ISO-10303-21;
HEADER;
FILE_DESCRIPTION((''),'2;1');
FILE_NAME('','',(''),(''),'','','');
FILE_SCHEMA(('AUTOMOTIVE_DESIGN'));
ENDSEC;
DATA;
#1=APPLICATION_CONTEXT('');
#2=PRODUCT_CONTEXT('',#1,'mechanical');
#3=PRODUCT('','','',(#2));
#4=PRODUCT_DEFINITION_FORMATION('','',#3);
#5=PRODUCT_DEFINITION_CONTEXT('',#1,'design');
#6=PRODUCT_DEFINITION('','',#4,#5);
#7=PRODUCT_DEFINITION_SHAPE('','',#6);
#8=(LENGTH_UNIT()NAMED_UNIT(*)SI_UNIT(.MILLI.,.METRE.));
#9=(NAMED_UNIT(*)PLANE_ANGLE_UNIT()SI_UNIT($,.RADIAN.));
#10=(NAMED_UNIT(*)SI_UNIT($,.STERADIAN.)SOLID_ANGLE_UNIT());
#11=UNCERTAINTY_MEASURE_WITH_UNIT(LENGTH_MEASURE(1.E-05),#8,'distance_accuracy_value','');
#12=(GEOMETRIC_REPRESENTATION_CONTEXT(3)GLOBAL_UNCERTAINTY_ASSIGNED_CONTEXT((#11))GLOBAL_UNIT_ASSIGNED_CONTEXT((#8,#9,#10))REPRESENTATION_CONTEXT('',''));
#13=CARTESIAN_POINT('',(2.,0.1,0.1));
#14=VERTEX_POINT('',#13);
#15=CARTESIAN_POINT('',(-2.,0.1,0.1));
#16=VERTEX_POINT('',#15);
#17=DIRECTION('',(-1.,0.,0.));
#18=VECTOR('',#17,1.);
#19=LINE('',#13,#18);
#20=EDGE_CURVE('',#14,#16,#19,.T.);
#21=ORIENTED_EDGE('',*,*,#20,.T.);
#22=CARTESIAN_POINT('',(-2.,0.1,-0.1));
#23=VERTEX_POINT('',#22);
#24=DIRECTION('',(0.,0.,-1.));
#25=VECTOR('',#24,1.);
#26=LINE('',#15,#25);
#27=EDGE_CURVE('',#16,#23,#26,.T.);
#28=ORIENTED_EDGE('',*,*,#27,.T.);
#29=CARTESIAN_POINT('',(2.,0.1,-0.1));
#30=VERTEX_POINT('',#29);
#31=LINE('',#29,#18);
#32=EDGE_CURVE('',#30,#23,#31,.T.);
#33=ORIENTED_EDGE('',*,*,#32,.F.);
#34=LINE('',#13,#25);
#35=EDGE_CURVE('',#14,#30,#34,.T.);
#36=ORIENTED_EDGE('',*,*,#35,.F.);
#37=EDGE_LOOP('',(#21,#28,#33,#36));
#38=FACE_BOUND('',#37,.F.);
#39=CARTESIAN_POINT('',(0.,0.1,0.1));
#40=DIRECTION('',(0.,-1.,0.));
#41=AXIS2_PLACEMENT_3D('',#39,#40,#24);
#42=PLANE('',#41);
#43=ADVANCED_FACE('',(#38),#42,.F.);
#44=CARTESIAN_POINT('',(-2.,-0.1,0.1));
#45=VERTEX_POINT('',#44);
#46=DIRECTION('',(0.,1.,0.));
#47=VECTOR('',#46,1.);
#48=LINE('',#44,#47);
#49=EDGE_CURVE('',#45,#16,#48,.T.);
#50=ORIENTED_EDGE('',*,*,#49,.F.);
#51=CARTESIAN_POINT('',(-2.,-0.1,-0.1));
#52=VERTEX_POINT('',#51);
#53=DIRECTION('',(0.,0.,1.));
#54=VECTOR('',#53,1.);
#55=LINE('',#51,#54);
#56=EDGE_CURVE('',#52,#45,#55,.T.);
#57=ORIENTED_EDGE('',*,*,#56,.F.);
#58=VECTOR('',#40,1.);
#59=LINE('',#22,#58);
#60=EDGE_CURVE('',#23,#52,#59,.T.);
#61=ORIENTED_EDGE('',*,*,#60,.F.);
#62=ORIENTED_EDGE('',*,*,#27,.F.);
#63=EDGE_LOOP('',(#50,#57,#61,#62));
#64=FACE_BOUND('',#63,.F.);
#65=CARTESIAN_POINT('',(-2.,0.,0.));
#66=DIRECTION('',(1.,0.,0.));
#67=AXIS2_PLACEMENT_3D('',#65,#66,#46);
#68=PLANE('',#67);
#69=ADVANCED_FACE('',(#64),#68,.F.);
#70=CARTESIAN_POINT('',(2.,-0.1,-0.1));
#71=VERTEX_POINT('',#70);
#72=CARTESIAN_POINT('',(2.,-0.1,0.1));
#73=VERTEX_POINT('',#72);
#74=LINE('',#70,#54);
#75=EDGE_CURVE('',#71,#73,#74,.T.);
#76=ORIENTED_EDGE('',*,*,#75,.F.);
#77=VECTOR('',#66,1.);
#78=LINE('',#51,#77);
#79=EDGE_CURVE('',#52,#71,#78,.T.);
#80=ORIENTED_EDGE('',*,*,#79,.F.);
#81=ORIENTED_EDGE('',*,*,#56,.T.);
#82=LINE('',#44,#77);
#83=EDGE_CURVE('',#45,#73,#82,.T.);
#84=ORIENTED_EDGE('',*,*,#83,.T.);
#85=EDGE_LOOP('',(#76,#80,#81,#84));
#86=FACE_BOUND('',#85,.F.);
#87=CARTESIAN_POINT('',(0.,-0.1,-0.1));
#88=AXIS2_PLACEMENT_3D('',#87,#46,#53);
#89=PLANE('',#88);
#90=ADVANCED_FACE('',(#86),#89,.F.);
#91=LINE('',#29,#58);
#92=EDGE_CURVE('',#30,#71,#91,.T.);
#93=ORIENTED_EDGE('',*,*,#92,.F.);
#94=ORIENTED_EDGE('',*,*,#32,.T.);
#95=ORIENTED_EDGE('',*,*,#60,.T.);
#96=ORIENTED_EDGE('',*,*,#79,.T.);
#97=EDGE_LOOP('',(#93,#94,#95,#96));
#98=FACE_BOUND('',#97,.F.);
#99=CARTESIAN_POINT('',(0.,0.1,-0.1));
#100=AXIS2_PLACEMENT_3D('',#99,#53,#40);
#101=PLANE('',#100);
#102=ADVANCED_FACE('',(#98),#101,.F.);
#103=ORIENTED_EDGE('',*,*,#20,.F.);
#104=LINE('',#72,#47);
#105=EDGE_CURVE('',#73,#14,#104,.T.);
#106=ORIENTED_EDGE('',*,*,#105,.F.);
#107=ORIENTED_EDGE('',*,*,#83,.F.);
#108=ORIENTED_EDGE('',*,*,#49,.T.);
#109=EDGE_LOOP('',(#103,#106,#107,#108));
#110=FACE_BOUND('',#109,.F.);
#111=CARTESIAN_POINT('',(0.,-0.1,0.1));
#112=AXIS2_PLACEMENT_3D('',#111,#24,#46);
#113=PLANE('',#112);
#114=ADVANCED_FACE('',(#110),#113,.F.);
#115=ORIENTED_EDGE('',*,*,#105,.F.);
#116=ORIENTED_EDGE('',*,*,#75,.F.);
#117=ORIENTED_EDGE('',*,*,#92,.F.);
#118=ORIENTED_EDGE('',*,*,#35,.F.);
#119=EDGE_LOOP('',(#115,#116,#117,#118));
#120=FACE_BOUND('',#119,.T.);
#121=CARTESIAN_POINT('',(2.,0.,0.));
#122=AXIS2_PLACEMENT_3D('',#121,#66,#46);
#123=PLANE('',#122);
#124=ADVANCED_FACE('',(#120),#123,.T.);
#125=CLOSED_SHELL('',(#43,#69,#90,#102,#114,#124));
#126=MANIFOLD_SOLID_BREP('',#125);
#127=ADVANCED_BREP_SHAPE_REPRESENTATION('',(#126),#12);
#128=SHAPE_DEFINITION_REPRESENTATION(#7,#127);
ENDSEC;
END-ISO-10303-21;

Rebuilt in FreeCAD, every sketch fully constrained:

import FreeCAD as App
import Part
import Sketcher
Q = App.Units.Quantity

doc = App.newDocument("Part")
params = doc.addObject("Spreadsheet::Sheet", "Params")
for row, (alias, value) in enumerate([
    ("sketch1_width", "0.2 mm"),
    ("pad1_length", "4 mm"),
], start=1):
    params.set(f"A{row}", alias)
    params.set(f"B{row}", "=" + value)
    params.setAlias(f"B{row}", alias)

body = doc.addObject("PartDesign::Body", "Body")

sketch1 = body.newObject("Sketcher::SketchObject", "Sketch")
sketch1.AttachmentSupport = (doc.getObject("YZ_Plane"), [""])
sketch1.MapMode = "FlatFace"
sketch1.addGeometry(Part.LineSegment(App.Vector(0.1, 0.1, 0), App.Vector(-0.1, 0.1, 0)), False)
sketch1.addGeometry(Part.LineSegment(App.Vector(-0.1, 0.1, 0), App.Vector(-0.1, -0.1, 0)), False)
sketch1.addGeometry(Part.LineSegment(App.Vector(-0.1, -0.1, 0), App.Vector(0.1, -0.1, 0)), False)
sketch1.addGeometry(Part.LineSegment(App.Vector(0.1, -0.1, 0), App.Vector(0.1, 0.1, 0)), False)
sketch1.addConstraint(Sketcher.Constraint("Coincident", 0, 2, 1, 1))
sketch1.addConstraint(Sketcher.Constraint("Coincident", 1, 2, 2, 1))
sketch1.addConstraint(Sketcher.Constraint("Coincident", 2, 2, 3, 1))
sketch1.addConstraint(Sketcher.Constraint("Coincident", 3, 2, 0, 1))
sketch1.addConstraint(Sketcher.Constraint("Horizontal", 0))
sketch1.addConstraint(Sketcher.Constraint("Vertical", 1))
sketch1.addConstraint(Sketcher.Constraint("Horizontal", 2))
sketch1.addConstraint(Sketcher.Constraint("Vertical", 3))
sketch1.addConstraint(Sketcher.Constraint("Symmetric", 0, 2, 2, 2, -1, 1))
sketch1.addConstraint(Sketcher.Constraint("Equal", 2, 1))
sketch1.addConstraint(Sketcher.Constraint("DistanceX", 0, 2, 0, 1, Q("0.2 mm")))
sketch1.setExpression("Constraints[10]", "Params.sketch1_width")
pad1 = body.newObject("PartDesign::Pad", "Pad")
pad1.Profile = sketch1
pad1.setExpression("Length", "Params.pad1_length")
pad1.Midplane = True

doc.recompute()
